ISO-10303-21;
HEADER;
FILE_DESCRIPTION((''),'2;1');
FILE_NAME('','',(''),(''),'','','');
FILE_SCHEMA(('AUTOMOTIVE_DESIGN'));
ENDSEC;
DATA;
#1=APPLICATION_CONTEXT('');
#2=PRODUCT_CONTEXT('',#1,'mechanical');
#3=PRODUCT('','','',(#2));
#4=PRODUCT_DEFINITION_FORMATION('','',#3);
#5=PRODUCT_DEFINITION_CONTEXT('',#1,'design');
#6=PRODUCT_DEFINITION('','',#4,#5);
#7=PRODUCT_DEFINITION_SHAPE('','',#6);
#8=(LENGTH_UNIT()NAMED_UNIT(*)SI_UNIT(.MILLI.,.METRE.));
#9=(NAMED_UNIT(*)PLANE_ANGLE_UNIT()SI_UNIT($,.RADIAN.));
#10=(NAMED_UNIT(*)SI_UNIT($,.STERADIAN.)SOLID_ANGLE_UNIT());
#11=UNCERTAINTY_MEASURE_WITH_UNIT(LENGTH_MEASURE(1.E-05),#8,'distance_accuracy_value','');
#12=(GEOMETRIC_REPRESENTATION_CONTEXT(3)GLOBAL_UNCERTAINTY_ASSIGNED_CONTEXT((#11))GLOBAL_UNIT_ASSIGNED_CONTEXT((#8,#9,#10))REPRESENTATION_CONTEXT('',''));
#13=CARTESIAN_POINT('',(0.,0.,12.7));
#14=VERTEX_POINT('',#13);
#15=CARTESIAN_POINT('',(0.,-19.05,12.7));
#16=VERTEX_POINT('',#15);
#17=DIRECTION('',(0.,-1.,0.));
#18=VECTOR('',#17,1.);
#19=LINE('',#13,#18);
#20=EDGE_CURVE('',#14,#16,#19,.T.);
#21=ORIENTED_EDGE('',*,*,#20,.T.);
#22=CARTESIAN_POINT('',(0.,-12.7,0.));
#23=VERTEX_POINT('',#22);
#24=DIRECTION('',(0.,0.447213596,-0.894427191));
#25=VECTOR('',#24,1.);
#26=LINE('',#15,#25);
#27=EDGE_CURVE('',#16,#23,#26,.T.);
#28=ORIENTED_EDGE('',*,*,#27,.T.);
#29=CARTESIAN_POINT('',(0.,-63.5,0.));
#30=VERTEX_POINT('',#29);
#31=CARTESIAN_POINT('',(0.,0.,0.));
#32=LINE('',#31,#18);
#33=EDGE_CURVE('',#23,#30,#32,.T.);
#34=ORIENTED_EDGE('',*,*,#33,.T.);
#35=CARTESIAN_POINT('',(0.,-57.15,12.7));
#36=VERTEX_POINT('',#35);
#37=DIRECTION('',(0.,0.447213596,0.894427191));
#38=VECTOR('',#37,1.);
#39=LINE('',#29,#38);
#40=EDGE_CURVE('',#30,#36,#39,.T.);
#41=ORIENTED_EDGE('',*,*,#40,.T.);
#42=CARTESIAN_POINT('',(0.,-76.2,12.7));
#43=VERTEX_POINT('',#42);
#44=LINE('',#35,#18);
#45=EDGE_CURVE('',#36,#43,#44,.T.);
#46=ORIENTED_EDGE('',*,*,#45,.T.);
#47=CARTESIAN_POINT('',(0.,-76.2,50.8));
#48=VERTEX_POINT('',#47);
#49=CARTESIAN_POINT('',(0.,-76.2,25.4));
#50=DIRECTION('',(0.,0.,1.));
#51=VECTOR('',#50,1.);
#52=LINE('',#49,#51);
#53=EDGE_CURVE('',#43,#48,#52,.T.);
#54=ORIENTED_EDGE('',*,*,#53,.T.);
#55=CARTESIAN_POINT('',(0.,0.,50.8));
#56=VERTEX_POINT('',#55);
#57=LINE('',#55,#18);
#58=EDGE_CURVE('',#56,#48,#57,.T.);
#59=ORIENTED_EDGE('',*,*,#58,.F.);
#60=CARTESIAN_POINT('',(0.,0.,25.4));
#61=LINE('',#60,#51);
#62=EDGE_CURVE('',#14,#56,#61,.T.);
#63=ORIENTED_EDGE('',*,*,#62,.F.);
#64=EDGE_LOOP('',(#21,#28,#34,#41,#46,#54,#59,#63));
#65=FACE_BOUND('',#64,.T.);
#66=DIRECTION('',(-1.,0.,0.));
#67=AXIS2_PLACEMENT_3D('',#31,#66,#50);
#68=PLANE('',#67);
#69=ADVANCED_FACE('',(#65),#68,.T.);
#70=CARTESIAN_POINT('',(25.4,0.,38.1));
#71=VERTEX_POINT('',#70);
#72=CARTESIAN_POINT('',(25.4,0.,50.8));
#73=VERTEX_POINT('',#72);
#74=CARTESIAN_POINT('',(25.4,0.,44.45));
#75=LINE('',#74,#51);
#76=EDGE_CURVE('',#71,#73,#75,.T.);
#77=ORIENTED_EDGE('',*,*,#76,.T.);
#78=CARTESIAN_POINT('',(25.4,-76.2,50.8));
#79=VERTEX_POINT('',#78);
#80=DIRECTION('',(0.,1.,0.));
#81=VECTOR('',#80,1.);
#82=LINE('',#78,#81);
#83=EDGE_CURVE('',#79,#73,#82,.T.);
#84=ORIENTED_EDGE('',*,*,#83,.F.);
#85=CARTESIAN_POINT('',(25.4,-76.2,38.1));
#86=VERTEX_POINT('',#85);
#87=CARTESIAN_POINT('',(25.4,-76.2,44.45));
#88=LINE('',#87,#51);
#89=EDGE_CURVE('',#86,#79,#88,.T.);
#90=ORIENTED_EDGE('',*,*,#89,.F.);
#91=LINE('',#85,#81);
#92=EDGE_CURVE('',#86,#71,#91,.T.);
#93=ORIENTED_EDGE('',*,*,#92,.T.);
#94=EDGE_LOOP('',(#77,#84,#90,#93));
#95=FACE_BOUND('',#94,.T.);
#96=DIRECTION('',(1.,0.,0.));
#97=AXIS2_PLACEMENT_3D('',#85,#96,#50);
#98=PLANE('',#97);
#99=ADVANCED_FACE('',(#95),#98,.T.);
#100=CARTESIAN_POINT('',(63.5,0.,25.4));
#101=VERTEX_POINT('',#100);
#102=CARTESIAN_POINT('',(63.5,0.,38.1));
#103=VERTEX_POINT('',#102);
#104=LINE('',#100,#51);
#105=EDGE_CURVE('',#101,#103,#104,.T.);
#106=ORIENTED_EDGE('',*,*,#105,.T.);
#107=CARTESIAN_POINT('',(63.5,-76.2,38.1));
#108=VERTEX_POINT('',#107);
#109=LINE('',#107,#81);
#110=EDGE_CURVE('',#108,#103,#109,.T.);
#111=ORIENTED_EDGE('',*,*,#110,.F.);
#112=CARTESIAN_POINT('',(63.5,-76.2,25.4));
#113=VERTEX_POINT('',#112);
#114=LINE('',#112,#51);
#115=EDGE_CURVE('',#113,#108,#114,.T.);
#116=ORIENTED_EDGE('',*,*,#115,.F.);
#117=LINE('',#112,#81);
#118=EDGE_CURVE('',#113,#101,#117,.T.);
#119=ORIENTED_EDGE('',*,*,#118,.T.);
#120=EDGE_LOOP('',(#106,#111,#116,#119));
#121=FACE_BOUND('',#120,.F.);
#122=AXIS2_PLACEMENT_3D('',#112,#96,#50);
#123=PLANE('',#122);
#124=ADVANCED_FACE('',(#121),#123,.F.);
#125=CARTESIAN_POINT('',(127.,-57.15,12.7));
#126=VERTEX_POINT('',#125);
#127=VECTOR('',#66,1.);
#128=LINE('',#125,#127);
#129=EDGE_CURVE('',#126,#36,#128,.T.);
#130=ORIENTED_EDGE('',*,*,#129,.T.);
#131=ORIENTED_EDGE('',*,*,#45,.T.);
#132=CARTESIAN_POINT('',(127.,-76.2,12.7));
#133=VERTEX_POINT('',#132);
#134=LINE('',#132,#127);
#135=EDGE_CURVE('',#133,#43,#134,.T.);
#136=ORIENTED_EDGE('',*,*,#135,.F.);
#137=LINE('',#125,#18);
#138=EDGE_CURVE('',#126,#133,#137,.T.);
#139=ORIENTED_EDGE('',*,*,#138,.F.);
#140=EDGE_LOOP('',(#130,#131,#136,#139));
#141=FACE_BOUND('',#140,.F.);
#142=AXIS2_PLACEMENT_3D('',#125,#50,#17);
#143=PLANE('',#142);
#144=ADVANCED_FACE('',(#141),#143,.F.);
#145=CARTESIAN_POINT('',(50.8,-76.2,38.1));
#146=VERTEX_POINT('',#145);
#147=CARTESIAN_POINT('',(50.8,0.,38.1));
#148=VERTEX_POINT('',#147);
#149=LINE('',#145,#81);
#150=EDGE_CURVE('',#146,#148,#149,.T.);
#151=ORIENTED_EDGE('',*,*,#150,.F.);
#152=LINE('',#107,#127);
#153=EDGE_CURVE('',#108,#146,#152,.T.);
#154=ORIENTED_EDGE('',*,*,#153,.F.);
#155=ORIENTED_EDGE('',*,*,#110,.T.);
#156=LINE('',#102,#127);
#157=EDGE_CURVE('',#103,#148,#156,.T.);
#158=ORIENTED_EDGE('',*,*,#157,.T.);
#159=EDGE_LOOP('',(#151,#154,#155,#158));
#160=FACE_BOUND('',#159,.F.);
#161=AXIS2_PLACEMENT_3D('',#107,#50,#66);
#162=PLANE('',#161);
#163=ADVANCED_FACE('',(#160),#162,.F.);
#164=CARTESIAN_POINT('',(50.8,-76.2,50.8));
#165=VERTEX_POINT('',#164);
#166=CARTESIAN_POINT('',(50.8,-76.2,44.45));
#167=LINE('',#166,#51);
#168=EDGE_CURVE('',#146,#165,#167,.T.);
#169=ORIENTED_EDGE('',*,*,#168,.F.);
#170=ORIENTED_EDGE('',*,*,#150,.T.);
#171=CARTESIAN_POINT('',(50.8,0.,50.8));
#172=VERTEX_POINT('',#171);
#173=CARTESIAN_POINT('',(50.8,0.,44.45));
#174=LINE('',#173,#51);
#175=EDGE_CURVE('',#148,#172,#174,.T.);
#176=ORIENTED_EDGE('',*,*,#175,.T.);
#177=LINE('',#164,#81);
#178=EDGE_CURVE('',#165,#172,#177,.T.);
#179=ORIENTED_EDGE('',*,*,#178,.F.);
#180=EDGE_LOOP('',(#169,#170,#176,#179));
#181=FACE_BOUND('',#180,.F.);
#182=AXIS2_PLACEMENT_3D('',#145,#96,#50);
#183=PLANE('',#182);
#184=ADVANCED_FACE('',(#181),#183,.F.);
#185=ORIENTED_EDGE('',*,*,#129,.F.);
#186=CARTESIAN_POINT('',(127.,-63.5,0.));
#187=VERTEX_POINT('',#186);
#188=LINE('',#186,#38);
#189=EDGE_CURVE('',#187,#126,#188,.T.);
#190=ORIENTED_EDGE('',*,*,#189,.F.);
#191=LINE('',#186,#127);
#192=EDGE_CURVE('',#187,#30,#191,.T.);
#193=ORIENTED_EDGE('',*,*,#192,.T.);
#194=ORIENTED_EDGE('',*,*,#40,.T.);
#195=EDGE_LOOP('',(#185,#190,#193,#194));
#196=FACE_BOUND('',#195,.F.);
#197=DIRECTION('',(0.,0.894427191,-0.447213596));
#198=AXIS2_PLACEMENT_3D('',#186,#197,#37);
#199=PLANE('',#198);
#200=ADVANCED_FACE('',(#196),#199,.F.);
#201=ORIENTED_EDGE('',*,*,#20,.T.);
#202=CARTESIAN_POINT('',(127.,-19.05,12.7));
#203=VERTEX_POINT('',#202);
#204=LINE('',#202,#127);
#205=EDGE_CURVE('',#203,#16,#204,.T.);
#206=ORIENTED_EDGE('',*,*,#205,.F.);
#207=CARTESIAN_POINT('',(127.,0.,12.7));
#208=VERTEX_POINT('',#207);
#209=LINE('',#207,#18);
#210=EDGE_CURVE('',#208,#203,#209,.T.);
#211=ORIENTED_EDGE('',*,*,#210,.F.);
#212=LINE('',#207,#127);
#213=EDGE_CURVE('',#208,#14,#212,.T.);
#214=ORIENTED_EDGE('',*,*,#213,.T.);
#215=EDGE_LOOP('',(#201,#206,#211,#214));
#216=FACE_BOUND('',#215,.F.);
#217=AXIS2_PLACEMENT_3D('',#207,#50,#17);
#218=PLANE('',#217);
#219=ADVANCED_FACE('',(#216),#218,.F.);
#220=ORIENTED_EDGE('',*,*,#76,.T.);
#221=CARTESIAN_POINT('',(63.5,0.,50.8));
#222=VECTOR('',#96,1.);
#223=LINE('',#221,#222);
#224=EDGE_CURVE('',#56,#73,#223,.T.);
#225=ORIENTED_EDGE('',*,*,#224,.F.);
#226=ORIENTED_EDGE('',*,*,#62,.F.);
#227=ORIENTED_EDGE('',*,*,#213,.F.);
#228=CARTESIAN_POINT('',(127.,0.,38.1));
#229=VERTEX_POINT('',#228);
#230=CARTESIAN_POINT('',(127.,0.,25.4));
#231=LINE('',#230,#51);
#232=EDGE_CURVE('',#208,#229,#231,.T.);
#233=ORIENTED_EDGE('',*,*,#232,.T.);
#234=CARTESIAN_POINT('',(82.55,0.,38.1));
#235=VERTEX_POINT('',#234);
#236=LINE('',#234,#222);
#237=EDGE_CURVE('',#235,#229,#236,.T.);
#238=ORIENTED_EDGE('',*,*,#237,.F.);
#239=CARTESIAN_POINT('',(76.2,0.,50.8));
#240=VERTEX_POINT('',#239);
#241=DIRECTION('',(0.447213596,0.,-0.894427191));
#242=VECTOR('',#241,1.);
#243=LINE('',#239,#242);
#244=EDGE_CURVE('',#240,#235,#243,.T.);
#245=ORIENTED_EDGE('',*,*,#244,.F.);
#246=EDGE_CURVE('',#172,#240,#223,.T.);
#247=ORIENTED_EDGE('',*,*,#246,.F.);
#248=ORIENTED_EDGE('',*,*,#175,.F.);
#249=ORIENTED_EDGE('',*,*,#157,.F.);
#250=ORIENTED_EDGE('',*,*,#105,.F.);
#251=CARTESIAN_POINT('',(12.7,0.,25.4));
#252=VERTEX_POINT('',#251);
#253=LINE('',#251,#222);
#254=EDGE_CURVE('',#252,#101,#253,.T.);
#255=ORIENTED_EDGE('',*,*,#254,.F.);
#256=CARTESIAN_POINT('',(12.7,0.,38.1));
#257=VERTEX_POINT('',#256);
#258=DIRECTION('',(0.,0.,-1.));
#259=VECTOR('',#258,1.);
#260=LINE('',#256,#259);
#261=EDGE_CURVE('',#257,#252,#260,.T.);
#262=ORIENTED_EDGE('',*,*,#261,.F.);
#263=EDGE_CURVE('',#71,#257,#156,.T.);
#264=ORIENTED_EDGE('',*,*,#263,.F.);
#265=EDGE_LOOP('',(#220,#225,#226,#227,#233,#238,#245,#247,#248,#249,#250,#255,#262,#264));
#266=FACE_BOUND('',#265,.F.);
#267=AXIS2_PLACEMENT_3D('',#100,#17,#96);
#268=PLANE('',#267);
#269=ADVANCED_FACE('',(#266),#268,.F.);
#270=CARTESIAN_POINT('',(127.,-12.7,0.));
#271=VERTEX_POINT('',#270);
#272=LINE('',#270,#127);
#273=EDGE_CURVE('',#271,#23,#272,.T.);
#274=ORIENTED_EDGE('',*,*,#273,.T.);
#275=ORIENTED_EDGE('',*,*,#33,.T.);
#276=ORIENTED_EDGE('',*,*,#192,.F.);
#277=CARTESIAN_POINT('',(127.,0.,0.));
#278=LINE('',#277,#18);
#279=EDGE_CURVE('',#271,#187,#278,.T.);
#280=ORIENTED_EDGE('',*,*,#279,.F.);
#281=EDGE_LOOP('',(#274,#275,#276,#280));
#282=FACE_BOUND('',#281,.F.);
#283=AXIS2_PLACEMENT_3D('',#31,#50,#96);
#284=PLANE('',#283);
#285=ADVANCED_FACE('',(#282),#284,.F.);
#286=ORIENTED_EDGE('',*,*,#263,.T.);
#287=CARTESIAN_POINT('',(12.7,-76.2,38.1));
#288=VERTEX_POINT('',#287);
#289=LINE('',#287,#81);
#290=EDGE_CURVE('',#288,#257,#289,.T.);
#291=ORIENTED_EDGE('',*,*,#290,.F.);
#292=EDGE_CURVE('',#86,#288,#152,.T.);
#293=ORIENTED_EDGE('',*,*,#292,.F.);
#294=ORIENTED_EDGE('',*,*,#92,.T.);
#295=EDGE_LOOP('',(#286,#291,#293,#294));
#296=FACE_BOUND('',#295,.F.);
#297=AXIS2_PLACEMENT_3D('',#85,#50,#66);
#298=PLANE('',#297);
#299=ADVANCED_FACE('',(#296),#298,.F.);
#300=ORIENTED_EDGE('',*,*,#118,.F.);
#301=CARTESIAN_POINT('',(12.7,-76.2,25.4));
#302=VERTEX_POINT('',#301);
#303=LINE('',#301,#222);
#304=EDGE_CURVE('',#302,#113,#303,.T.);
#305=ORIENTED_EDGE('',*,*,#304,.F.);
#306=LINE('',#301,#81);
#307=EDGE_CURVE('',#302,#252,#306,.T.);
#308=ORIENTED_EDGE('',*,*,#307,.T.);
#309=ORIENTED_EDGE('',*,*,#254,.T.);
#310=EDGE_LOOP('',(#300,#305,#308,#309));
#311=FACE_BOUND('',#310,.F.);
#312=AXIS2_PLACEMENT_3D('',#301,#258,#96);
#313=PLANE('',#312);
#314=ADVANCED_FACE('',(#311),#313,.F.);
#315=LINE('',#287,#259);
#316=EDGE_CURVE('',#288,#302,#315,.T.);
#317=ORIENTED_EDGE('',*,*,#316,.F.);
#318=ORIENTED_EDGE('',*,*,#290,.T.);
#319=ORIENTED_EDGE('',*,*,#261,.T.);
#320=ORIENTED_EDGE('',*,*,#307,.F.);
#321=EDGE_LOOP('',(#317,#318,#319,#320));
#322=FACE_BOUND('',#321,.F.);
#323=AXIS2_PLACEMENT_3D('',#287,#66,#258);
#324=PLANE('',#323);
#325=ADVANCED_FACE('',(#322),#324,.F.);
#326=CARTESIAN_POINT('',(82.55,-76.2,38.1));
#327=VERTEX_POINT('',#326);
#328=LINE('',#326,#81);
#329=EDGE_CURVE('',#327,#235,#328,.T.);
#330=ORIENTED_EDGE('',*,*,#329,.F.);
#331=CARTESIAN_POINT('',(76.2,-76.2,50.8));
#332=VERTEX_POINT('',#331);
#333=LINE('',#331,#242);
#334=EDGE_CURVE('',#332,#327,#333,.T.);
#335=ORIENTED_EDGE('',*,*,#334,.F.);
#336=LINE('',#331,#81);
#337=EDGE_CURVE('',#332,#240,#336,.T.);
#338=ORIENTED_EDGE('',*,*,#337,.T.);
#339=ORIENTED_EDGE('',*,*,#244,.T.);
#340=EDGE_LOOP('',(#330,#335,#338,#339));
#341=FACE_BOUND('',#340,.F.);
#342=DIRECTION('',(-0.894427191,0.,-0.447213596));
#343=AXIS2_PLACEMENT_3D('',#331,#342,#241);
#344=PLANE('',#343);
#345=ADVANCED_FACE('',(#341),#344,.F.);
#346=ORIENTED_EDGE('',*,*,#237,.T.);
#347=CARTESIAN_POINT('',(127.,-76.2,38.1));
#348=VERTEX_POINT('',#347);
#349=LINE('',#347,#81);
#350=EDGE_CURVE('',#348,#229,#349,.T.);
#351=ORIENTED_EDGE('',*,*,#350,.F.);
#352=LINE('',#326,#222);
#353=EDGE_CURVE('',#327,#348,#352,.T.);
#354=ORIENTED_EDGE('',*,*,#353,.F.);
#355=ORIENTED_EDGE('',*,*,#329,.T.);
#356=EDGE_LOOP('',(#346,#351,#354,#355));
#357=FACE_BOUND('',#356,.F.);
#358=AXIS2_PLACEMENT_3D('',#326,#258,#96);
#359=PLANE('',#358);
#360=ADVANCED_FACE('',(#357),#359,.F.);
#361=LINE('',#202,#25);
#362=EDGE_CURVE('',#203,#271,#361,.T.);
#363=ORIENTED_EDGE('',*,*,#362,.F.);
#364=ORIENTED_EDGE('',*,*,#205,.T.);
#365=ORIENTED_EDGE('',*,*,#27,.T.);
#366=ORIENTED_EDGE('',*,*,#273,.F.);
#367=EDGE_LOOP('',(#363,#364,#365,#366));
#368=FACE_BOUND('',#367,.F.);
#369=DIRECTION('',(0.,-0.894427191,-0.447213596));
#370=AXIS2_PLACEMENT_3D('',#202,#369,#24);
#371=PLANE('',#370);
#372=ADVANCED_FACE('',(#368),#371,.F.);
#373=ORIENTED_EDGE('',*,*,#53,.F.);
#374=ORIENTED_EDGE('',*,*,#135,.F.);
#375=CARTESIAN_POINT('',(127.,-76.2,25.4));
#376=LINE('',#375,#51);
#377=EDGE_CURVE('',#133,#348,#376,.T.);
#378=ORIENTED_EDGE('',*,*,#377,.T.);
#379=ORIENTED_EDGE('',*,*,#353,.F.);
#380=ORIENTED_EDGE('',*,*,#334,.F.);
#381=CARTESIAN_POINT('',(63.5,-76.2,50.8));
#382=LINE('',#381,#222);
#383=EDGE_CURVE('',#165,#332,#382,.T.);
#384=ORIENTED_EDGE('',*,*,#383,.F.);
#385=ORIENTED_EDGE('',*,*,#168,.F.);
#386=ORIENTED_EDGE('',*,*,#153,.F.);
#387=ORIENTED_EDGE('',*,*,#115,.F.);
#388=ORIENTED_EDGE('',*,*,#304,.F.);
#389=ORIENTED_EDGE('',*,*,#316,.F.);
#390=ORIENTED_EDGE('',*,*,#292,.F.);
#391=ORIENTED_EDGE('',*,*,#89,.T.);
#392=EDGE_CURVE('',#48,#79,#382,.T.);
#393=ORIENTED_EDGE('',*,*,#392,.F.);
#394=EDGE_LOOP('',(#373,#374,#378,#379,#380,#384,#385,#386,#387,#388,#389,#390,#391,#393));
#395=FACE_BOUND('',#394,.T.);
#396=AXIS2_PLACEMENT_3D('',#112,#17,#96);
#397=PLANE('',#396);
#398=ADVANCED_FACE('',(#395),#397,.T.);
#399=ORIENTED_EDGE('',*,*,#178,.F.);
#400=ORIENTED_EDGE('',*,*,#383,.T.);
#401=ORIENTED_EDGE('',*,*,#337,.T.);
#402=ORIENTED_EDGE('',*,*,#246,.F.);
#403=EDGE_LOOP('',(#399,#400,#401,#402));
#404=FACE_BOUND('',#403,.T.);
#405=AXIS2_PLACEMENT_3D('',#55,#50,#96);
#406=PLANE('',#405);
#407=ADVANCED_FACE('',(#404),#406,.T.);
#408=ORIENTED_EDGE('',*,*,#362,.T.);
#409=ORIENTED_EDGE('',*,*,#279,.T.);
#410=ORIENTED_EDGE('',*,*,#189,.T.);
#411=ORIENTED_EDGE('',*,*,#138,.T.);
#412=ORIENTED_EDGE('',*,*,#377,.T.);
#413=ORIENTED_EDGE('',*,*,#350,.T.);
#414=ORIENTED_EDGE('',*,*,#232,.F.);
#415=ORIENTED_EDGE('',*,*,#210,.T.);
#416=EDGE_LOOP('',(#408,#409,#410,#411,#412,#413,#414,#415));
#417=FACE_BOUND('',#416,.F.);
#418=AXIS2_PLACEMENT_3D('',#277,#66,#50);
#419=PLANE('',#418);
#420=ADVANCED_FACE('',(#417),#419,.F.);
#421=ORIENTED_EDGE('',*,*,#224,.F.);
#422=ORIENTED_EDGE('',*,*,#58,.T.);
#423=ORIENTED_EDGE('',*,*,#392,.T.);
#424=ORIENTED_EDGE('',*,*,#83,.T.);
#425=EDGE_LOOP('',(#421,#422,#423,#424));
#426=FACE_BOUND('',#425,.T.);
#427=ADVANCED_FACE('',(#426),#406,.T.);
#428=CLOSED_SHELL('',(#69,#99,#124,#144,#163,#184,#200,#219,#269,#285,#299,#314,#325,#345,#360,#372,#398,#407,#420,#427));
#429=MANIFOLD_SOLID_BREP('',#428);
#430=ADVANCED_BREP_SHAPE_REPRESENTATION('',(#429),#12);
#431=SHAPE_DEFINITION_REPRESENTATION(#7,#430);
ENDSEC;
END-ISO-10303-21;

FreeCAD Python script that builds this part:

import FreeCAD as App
import Part
import Sketcher

V = App.Vector
Q = App.Units.Quantity

doc = App.newDocument("Part")
body = doc.addObject("PartDesign::Body", "Body")

# Sketch on XZ plane
sketch1 = body.newObject("Sketcher::SketchObject", "Sketch")
sketch1.AttachmentSupport = (doc.getObject("XZ_Plane"), [""])
sketch1.MapMode = "FlatFace"
sketch1.addGeometry([
    Part.LineSegment(V(0, 51, 0), V(0, 0, 0)),
    Part.LineSegment(V(0, 0, 0), V(127, 0, 0)),
    Part.LineSegment(V(127, 0, 0), V(127, 51, 0)),
    Part.LineSegment(V(127, 51, 0), V(0, 51, 0)),
], False)
sketch1.addConstraint([
    Sketcher.Constraint("Coincident", 0, 2, 1, 1),
    Sketcher.Constraint("Coincident", 1, 2, 2, 1),
    Sketcher.Constraint("Coincident", 2, 2, 3, 1),
    Sketcher.Constraint("Coincident", 3, 2, 0, 1),
    Sketcher.Constraint("Vertical", 0),
    Sketcher.Constraint("Horizontal", 1),
    Sketcher.Constraint("Vertical", 2),
    Sketcher.Constraint("Horizontal", 3),
    Sketcher.Constraint("Coincident", 0, 2, -1, 1),
    Sketcher.Constraint("DistanceX", 1, 1, 1, 2, Q("5 in")),
    Sketcher.Constraint("DistanceY", 0, 2, 0, 1, Q("2 in")),
])
pad1 = body.newObject("PartDesign::Pad", "Pad")
pad1.Profile = sketch1
pad1.Length = Q("3 in")

# Sketch on XZ plane
sketch2 = body.newObject("Sketcher::SketchObject", "Sketch001")
sketch2.AttachmentSupport = (doc.getObject("XZ_Plane"), [""])
sketch2.MapMode = "FlatFace"
sketch2.AttachmentOffset = App.Placement(V(0, 0, 3 * 25.4), App.Rotation())
sketch2.addGeometry([
    Part.LineSegment(V(13, 38, 0), V(13, 25, 0)),  # 0
    Part.LineSegment(V(13, 25, 0), V(64, 25, 0)),  # 1
    Part.LineSegment(V(64, 25, 0), V(64, 38, 0)),  # 2
    Part.LineSegment(V(64, 38, 0), V(51, 38, 0)),  # 3
    Part.LineSegment(V(51, 38, 0), V(51, 51, 0)),  # 4
    Part.LineSegment(V(51, 51, 0), V(25, 51, 0)),  # 5
    Part.LineSegment(V(25, 51, 0), V(25, 38, 0)),  # 6
    Part.LineSegment(V(25, 38, 0), V(13, 38, 0)),  # 7
], False)
sketch2.addConstraint([
    Sketcher.Constraint("Coincident", 0, 2, 1, 1),
    Sketcher.Constraint("Coincident", 1, 2, 2, 1),
    Sketcher.Constraint("Coincident", 2, 2, 3, 1),
    Sketcher.Constraint("Coincident", 3, 2, 4, 1),
    Sketcher.Constraint("Coincident", 4, 2, 5, 1),
    Sketcher.Constraint("Coincident", 5, 2, 6, 1),
    Sketcher.Constraint("Coincident", 6, 2, 7, 1),
    Sketcher.Constraint("Coincident", 7, 2, 0, 1),
    Sketcher.Constraint("Vertical", 0),
    Sketcher.Constraint("Horizontal", 1),
    Sketcher.Constraint("Vertical", 2),
    Sketcher.Constraint("Horizontal", 3),
    Sketcher.Constraint("Vertical", 4),
    Sketcher.Constraint("Horizontal", 5),
    Sketcher.Constraint("Vertical", 6),
    Sketcher.Constraint("Horizontal", 7),
    Sketcher.Constraint("Horizontal", 3, 2, 6, 2),
    Sketcher.Constraint("Equal", 3, 7),
    Sketcher.Constraint("Equal", 7, 0),
    Sketcher.Constraint("Equal", 2, 4),
    Sketcher.Constraint("DistanceX", 1, 1, 1, 2, Q("2 in")),
    Sketcher.Constraint("DistanceX", 5, 2, 5, 1, Q("1 in")),
    Sketcher.Constraint("DistanceY", -1, 1, 0, 2, Q("1 in")),
    Sketcher.Constraint("DistanceX", -1, 1, 3, 2, Q("2 in")),
])
pocket1 = body.newObject("PartDesign::Pocket", "Pocket")
pocket1.Profile = sketch2
pocket1.Length = Q("3 in")

# Sketch on XZ plane
sketch3 = body.newObject("Sketcher::SketchObject", "Sketch002")
sketch3.AttachmentSupport = (doc.getObject("XZ_Plane"), [""])
sketch3.MapMode = "FlatFace"
sketch3.AttachmentOffset = App.Placement(V(0, 0, 3 * 25.4), App.Rotation())
sketch3.addGeometry([
    Part.LineSegment(V(127, 51, 0), V(76, 51, 0)),
    Part.LineSegment(V(76, 51, 0), V(83, 38, 0)),
    Part.LineSegment(V(83, 38, 0), V(127, 38, 0)),
    Part.LineSegment(V(127, 38, 0), V(127, 51, 0)),
], False)
sketch3.addConstraint([
    Sketcher.Constraint("Coincident", 0, 2, 1, 1),
    Sketcher.Constraint("Coincident", 1, 2, 2, 1),
    Sketcher.Constraint("Coincident", 2, 2, 3, 1),
    Sketcher.Constraint("Coincident", 3, 2, 0, 1),
    Sketcher.Constraint("Horizontal", 0),
    Sketcher.Constraint("Horizontal", 2),
    Sketcher.Constraint("Vertical", 3),
    Sketcher.Constraint("DistanceX", 0, 2, 0, 1, Q("2 in")),
    Sketcher.Constraint("DistanceY", 3, 1, 3, 2, Q("0.5 in")),
    Sketcher.Constraint("DistanceX", -1, 1, 0, 2, Q("3 in")),
    Sketcher.Constraint("DistanceY", -1, 1, 0, 2, Q("2 in")),
    Sketcher.Constraint("DistanceX", 2, 1, 2, 2, Q("1.75 in")),
])
pocket2 = body.newObject("PartDesign::Pocket", "Pocket001")
pocket2.Profile = sketch3
pocket2.Length = Q("3 in")

# Sketch on YZ plane
sketch4 = body.newObject("Sketcher::SketchObject", "Sketch003")
sketch4.AttachmentSupport = (doc.getObject("YZ_Plane"), [""])
sketch4.MapMode = "FlatFace"
sketch4.AttachmentOffset = App.Placement(V(0, 0, 5 * 25.4), App.Rotation())
sketch4.addGeometry([
    Part.LineSegment(V(-57, 13, 0), V(-76, 13, 0)),  # 0
    Part.LineSegment(V(-76, 13, 0), V(-76, 0, 0)),  # 1
    Part.LineSegment(V(-76, 0, 0), V(-64, 0, 0)),  # 2
    Part.LineSegment(V(-64, 0, 0), V(-57, 13, 0)),  # 3
    Part.LineSegment(V(0, 0, 0), V(0, 13, 0)),  # 4
    Part.LineSegment(V(0, 13, 0), V(-19, 13, 0)),  # 5
    Part.LineSegment(V(-19, 13, 0), V(-13, 0, 0)),  # 6
    Part.LineSegment(V(-13, 0, 0), V(0, 0, 0)),  # 7
], False)
sketch4.addConstraint([
    Sketcher.Constraint("Coincident", 0, 2, 1, 1),
    Sketcher.Constraint("Coincident", 1, 2, 2, 1),
    Sketcher.Constraint("Coincident", 2, 2, 3, 1),
    Sketcher.Constraint("Coincident", 3, 2, 0, 1),
    Sketcher.Constraint("Coincident", 4, 2, 5, 1),
    Sketcher.Constraint("Coincident", 5, 2, 6, 1),
    Sketcher.Constraint("Coincident", 6, 2, 7, 1),
    Sketcher.Constraint("Coincident", 7, 2, 4, 1),
    Sketcher.Constraint("Horizontal", 0),
    Sketcher.Constraint("Vertical", 1),
    Sketcher.Constraint("Horizontal", 2),
    Sketcher.Constraint("Vertical", 4),
    Sketcher.Constraint("Horizontal", 5),
    Sketcher.Constraint("Horizontal", 7),
    Sketcher.Constraint("Coincident", 7, 2, -1, 1),
    Sketcher.Constraint("PointOnObject", 1, 2, -1),
    Sketcher.Constraint("Horizontal", 3, 2, 4, 2),
    Sketcher.Constraint("Equal", 0, 5),
    Sketcher.Constraint("Equal", 2, 7),
    Sketcher.Constraint("Equal", 7, 1),
    Sketcher.Constraint("DistanceX", 2, 1, 2, 2, Q("0.5 in")),
    Sketcher.Constraint("DistanceX", 0, 2, -1, 1, Q("3 in")),
    Sketcher.Constraint("DistanceX", 0, 2, 0, 1, Q("0.75 in")),
])
pocket3 = body.newObject("PartDesign::Pocket", "Pocket002")
pocket3.Profile = sketch4
pocket3.Length = Q("5 in")

doc.recompute()
